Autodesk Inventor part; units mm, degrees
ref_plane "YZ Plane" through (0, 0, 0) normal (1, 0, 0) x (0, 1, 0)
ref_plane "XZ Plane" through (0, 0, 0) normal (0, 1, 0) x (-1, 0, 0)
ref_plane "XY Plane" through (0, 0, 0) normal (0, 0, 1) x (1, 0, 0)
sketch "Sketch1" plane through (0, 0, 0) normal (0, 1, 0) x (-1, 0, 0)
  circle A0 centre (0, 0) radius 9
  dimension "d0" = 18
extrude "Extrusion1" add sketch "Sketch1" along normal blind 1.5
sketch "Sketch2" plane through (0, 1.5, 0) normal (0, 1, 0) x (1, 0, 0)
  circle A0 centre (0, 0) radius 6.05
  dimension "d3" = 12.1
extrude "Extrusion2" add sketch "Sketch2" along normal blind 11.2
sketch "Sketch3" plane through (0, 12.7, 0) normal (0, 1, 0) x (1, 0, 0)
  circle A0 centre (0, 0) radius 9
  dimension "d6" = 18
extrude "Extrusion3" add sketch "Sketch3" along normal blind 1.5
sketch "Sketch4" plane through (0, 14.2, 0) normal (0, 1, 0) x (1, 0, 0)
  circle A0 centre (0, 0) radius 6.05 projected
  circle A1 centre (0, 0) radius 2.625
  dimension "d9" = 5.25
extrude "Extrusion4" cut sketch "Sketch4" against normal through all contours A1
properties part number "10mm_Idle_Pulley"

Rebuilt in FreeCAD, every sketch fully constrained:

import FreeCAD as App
import Part
import Sketcher
from FreeCAD import Vector
Q = App.Units.Quantity

doc = App.newDocument("Part")
body = doc.addObject("PartDesign::Body", "Body")

# Sketch on XZ plane
sketch1 = doc.addObject("Sketcher::SketchObject", "Sketch")
body.addObject(sketch1)
sketch1.AttachmentSupport = (doc.XZ_Plane, [""])
sketch1.MapMode = "FlatFace"
sketch1.addGeometry(Part.Circle(Vector(0, 0, 0), Vector(0, 0, 1), 9), False)
sketch1.addConstraint([
    Sketcher.Constraint("Coincident", 0, 3, -1, 1),
    Sketcher.Constraint("Diameter", 0, Q("18 mm")),
])
pad1 = doc.addObject("PartDesign::Pad", "Pad")
body.addObject(pad1)
pad1.Profile = sketch1
pad1.Length = 1.5
pad1.Reversed = True

# Sketch on XZ plane
sketch2 = doc.addObject("Sketcher::SketchObject", "Sketch001")
body.addObject(sketch2)
sketch2.AttachmentSupport = (doc.XZ_Plane, [""])
sketch2.MapMode = "FlatFace"
sketch2.AttachmentOffset = App.Placement(Vector(0, 0, -1.5), App.Rotation())
sketch2.addGeometry(Part.Circle(Vector(0, 0, 0), Vector(0, 0, 1), 6.05), False)
sketch2.addConstraint([
    Sketcher.Constraint("Coincident", 0, 3, -1, 1),
    Sketcher.Constraint("Diameter", 0, Q("12.1 mm")),
])
pad2 = doc.addObject("PartDesign::Pad", "Pad001")
body.addObject(pad2)
pad2.Profile = sketch2
pad2.Length = 11.2
pad2.Reversed = True

# Sketch on XZ plane
sketch3 = doc.addObject("Sketcher::SketchObject", "Sketch002")
body.addObject(sketch3)
sketch3.AttachmentSupport = (doc.XZ_Plane, [""])
sketch3.MapMode = "FlatFace"
sketch3.AttachmentOffset = App.Placement(Vector(0, 0, -12.7), App.Rotation())
sketch3.addGeometry(Part.Circle(Vector(0, 0, 0), Vector(0, 0, 1), 9), False)
sketch3.addConstraint([
    Sketcher.Constraint("Coincident", 0, 3, -1, 1),
    Sketcher.Constraint("Diameter", 0, Q("18 mm")),
])
pad3 = doc.addObject("PartDesign::Pad", "Pad002")
body.addObject(pad3)
pad3.Profile = sketch3
pad3.Length = 1.5
pad3.Reversed = True

# Sketch on XZ plane
sketch4 = doc.addObject("Sketcher::SketchObject", "Sketch003")
body.addObject(sketch4)
sketch4.AttachmentSupport = (doc.XZ_Plane, [""])
sketch4.MapMode = "FlatFace"
sketch4.AttachmentOffset = App.Placement(Vector(0, 0, -14.2), App.Rotation())
sketch4.addGeometry(Part.Circle(Vector(0, 0, 0), Vector(0, 0, 1), 2.625), False)
sketch4.addConstraint([
    Sketcher.Constraint("Coincident", 0, 3, -1, 1),
    Sketcher.Constraint("Diameter", 0, Q("5.25 mm")),
])
pocket1 = doc.addObject("PartDesign::Pocket", "Pocket")
body.addObject(pocket1)
pocket1.Profile = sketch4
pocket1.Type = "ThroughAll"
pocket1.Reversed = True

doc.recompute()
